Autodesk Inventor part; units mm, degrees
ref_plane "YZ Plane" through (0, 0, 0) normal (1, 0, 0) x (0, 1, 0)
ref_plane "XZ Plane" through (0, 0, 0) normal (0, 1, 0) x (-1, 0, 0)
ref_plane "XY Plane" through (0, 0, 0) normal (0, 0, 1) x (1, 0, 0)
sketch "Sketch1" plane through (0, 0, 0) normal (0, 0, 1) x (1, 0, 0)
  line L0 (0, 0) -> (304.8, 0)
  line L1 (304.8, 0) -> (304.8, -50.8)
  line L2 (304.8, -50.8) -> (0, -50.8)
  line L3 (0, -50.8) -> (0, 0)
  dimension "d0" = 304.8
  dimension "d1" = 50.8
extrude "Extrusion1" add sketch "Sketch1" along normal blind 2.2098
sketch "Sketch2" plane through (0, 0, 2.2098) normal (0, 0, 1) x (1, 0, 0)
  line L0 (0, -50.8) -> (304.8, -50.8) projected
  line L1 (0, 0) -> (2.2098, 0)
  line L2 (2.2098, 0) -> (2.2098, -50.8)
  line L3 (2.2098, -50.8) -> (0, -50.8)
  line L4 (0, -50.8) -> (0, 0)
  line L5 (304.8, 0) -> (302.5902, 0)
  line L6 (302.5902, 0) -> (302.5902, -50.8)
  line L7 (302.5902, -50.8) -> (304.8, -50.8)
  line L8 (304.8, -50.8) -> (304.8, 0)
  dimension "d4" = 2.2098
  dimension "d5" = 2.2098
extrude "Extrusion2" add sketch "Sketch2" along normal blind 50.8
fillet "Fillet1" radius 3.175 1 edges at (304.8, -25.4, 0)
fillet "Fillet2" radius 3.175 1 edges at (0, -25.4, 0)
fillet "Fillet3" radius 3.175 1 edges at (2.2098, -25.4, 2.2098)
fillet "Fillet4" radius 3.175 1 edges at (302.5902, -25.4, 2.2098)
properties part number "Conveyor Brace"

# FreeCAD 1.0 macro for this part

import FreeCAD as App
import Part
import Sketcher
Q = App.Units.Quantity


def edges_at(feature, points):
    """Names of the edges that pass closest to the given points."""
    edges = feature.Shape.Edges
    near = lambda p: min(range(len(edges)), key=lambda i: edges[i].distToShape(Part.Vertex(*p))[0])
    return sorted({f"Edge{near(p) + 1}" for p in points})

doc = App.newDocument("Part")
params = doc.addObject("Spreadsheet::Sheet", "Params")
for row, (alias, value) in enumerate([
    ("sketch1_width", "12 in"),
    ("sketch1_height", "2 in"),
    ("pad1_length", "0.087 in"),
    ("sketch2_width", "0.087 in"),
    ("sketch2_height", "2 in"),
    ("pad2_length", "2 in"),
    ("fillet_radius", "0.125 in"),
    ("fillet2_radius", "0.125 in"),
    ("fillet3_radius", "0.125 in"),
    ("fillet4_radius", "0.125 in"),
], start=1):
    params.set(f"A{row}", alias)
    params.set(f"B{row}", "=" + value)
    params.setAlias(f"B{row}", alias)

body = doc.addObject("PartDesign::Body", "Body")

sketch1 = doc.addObject("Sketcher::SketchObject", "Sketch")
body.addObject(sketch1)
sketch1.AttachmentSupport = (doc.XY_Plane, [""])
sketch1.MapMode = "FlatFace"
sketch1.addGeometry([
    Part.LineSegment(App.Vector(304.8, 0, 0), App.Vector(0, 0, 0)),
    Part.LineSegment(App.Vector(0, 0, 0), App.Vector(0, -50.8, 0)),
    Part.LineSegment(App.Vector(0, -50.8, 0), App.Vector(304.8, -50.8, 0)),
    Part.LineSegment(App.Vector(304.8, -50.8, 0), App.Vector(304.8, 0, 0)),
], False)
sketch1.addConstraint([
    Sketcher.Constraint("Coincident", 0, 2, 1, 1),
    Sketcher.Constraint("Coincident", 1, 2, 2, 1),
    Sketcher.Constraint("Coincident", 2, 2, 3, 1),
    Sketcher.Constraint("Coincident", 3, 2, 0, 1),
    Sketcher.Constraint("Horizontal", 0),
    Sketcher.Constraint("Vertical", 1),
    Sketcher.Constraint("Horizontal", 2),
    Sketcher.Constraint("Vertical", 3),
    Sketcher.Constraint("Coincident", 0, 2, -1, 1),
    Sketcher.Constraint("DistanceX", 0, 2, 0, 1, Q("12 in")),
    Sketcher.Constraint("DistanceY", 1, 2, 1, 1, Q("2 in")),
])
sketch1.setExpression("Constraints[9]", "Params.sketch1_width")
sketch1.setExpression("Constraints[10]", "Params.sketch1_height")
pad1 = doc.addObject("PartDesign::Pad", "Pad")
body.addObject(pad1)
pad1.Profile = sketch1
pad1.setExpression("Length", "Params.pad1_length")

sketch2 = doc.addObject("Sketcher::SketchObject", "Sketch001")
body.addObject(sketch2)
sketch2.AttachmentSupport = (doc.XY_Plane, [""])
sketch2.MapMode = "FlatFace"
sketch2.AttachmentOffset = App.Placement(App.Vector(0, 0, 0.087 * 25.4), App.Rotation())
sketch2.addGeometry([
    Part.LineSegment(App.Vector(0, 0, 0), App.Vector(0, -50.8, 0)),
    Part.LineSegment(App.Vector(0, -50.8, 0), App.Vector(2.2098, -50.8, 0)),
    Part.LineSegment(App.Vector(2.2098, -50.8, 0), App.Vector(2.2098, 0, 0)),
    Part.LineSegment(App.Vector(2.2098, 0, 0), App.Vector(0, 0, 0)),
    Part.LineSegment(App.Vector(302.5902, 0, 0), App.Vector(302.5902, -50.8, 0)),
    Part.LineSegment(App.Vector(302.5902, -50.8, 0), App.Vector(304.8, -50.8, 0)),
    Part.LineSegment(App.Vector(304.8, -50.8, 0), App.Vector(304.8, 0, 0)),
    Part.LineSegment(App.Vector(304.8, 0, 0), App.Vector(302.5902, 0, 0)),
], False)
sketch2.addConstraint([
    Sketcher.Constraint("Coincident", 0, 2, 1, 1),
    Sketcher.Constraint("Coincident", 1, 2, 2, 1),
    Sketcher.Constraint("Coincident", 2, 2, 3, 1),
    Sketcher.Constraint("Coincident", 3, 2, 0, 1),
    Sketcher.Constraint("Coincident", 4, 2, 5, 1),
    Sketcher.Constraint("Coincident", 5, 2, 6, 1),
    Sketcher.Constraint("Coincident", 6, 2, 7, 1),
    Sketcher.Constraint("Coincident", 7, 2, 4, 1),
    Sketcher.Constraint("Vertical", 0),
    Sketcher.Constraint("Horizontal", 1),
    Sketcher.Constraint("Vertical", 2),
    Sketcher.Constraint("Horizontal", 3),
    Sketcher.Constraint("Vertical", 4),
    Sketcher.Constraint("Horizontal", 5),
    Sketcher.Constraint("Vertical", 6),
    Sketcher.Constraint("Horizontal", 7),
    Sketcher.Constraint("Coincident", 3, 2, -1, 1),
    Sketcher.Constraint("PointOnObject", 6, 2, -1),
    Sketcher.Constraint("Horizontal", 1, 2, 4, 2),
    Sketcher.Constraint("Equal", 3, 5),
    Sketcher.Constraint("DistanceX", 1, 1, 1, 2, Q("0.087 in")),
    Sketcher.Constraint("DistanceY", 0, 2, 0, 1, Q("2 in")),
    Sketcher.Constraint("DistanceX", -1, 1, 5, 2, Q("12 in")),
])
sketch2.setExpression("Constraints[20]", "Params.sketch2_width")
sketch2.setExpression("Constraints[21]", "Params.sketch2_height")
pad2 = doc.addObject("PartDesign::Pad", "Pad001")
body.addObject(pad2)
pad2.Profile = sketch2
pad2.setExpression("Length", "Params.pad2_length")
doc.recompute()

fillet = doc.addObject("PartDesign::Fillet", "Fillet")
body.addObject(fillet)
fillet.Base = (pad2, edges_at(pad2, [(304.8, -25.4, 0)]))
fillet.setExpression("Radius", "Params.fillet_radius")
doc.recompute()

fillet2 = doc.addObject("PartDesign::Fillet", "Fillet001")
body.addObject(fillet2)
fillet2.Base = (fillet, edges_at(fillet, [(0, -25.4, 0)]))
fillet2.setExpression("Radius", "Params.fillet2_radius")
doc.recompute()

fillet3 = doc.addObject("PartDesign::Fillet", "Fillet002")
body.addObject(fillet3)
fillet3.Base = (fillet2, edges_at(fillet2, [(2.21, -25.4, 2.21)]))
fillet3.setExpression("Radius", "Params.fillet3_radius")
doc.recompute()

fillet4 = doc.addObject("PartDesign::Fillet", "Fillet003")
body.addObject(fillet4)
fillet4.Base = (fillet3, edges_at(fillet3, [(302.59, -25.4, 2.21)]))
fillet4.setExpression("Radius", "Params.fillet4_radius")

doc.recompute()
